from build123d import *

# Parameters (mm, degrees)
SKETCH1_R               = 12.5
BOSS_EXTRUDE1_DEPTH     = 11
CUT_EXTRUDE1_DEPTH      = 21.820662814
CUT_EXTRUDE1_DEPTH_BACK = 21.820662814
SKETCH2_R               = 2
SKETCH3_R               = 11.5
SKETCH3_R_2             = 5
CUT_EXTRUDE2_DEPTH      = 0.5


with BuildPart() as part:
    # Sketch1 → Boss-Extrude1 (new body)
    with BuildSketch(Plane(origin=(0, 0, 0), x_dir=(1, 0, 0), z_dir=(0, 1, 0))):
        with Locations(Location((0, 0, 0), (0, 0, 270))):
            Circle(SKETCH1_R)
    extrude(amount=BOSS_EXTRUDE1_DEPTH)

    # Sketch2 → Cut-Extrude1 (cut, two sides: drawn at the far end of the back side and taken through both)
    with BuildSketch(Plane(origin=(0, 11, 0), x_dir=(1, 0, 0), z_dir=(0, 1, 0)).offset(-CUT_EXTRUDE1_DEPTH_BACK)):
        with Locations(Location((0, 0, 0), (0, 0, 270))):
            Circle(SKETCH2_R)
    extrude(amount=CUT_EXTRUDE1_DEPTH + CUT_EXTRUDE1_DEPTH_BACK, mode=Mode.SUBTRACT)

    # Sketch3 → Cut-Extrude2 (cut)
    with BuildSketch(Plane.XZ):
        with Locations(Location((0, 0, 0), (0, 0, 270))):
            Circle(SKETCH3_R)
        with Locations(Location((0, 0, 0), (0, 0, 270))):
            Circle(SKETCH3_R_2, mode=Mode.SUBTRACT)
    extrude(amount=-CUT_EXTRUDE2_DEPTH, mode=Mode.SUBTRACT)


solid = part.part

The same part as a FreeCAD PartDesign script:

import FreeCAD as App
import Part
import Sketcher

V = App.Vector

doc = App.newDocument("Part")
body = doc.addObject("PartDesign::Body", "Body")

# Sketch on XZ plane
sketch1 = body.newObject("Sketcher::SketchObject", "Sketch")
sketch1.AttachmentSupport = (doc.getObject("XZ_Plane"), [""])
sketch1.MapMode = "FlatFace"
sketch1.addGeometry(Part.Circle(V(0, 0, 0), V(0, 0, 1), 12), False)
sketch1.addConstraint([
    Sketcher.Constraint("Coincident", 0, 3, -1, 1),
    Sketcher.Constraint("Diameter", 0, 25.0),
])
pad1 = body.newObject("PartDesign::Pad", "Pad")
pad1.Profile = sketch1
pad1.Length = 11
pad1.Reversed = True

# Sketch on XZ plane
sketch2 = body.newObject("Sketcher::SketchObject", "Sketch001")
sketch2.AttachmentSupport = (doc.getObject("XZ_Plane"), [""])
sketch2.MapMode = "FlatFace"
sketch2.AttachmentOffset = App.Placement(V(0, 0, -11), App.Rotation())
sketch2.addGeometry(Part.Circle(V(0, 0, 0), V(0, 0, 1), 2), False)
sketch2.addConstraint([
    Sketcher.Constraint("Coincident", 0, 3, -1, 1),
    Sketcher.Constraint("Diameter", 0, 4.0),
])
pocket1 = body.newObject("PartDesign::Pocket", "Pocket")
pocket1.Profile = sketch2
pocket1.Type = "ThroughAll"
pocket1.Midplane = True

# Sketch on XZ plane
sketch3 = body.newObject("Sketcher::SketchObject", "Sketch002")
sketch3.AttachmentSupport = (doc.getObject("XZ_Plane"), [""])
sketch3.MapMode = "FlatFace"
sketch3.addGeometry([
    Part.Circle(V(0, 0, 0), V(0, 0, 1), 12),
    Part.Circle(V(0, 0, 0), V(0, 0, 1), 5),
], False)
sketch3.addConstraint([
    Sketcher.Constraint("Coincident", 0, 3, -1, 1),
    Sketcher.Constraint("Coincident", 1, 3, -1, 1),
    Sketcher.Constraint("Diameter", 0, 23.0),
    Sketcher.Constraint("Diameter", 1, 10.0),
])
pocket2 = body.newObject("PartDesign::Pocket", "Pocket001")
pocket2.Profile = sketch3
pocket2.Length = 0.5

doc.recompute()
